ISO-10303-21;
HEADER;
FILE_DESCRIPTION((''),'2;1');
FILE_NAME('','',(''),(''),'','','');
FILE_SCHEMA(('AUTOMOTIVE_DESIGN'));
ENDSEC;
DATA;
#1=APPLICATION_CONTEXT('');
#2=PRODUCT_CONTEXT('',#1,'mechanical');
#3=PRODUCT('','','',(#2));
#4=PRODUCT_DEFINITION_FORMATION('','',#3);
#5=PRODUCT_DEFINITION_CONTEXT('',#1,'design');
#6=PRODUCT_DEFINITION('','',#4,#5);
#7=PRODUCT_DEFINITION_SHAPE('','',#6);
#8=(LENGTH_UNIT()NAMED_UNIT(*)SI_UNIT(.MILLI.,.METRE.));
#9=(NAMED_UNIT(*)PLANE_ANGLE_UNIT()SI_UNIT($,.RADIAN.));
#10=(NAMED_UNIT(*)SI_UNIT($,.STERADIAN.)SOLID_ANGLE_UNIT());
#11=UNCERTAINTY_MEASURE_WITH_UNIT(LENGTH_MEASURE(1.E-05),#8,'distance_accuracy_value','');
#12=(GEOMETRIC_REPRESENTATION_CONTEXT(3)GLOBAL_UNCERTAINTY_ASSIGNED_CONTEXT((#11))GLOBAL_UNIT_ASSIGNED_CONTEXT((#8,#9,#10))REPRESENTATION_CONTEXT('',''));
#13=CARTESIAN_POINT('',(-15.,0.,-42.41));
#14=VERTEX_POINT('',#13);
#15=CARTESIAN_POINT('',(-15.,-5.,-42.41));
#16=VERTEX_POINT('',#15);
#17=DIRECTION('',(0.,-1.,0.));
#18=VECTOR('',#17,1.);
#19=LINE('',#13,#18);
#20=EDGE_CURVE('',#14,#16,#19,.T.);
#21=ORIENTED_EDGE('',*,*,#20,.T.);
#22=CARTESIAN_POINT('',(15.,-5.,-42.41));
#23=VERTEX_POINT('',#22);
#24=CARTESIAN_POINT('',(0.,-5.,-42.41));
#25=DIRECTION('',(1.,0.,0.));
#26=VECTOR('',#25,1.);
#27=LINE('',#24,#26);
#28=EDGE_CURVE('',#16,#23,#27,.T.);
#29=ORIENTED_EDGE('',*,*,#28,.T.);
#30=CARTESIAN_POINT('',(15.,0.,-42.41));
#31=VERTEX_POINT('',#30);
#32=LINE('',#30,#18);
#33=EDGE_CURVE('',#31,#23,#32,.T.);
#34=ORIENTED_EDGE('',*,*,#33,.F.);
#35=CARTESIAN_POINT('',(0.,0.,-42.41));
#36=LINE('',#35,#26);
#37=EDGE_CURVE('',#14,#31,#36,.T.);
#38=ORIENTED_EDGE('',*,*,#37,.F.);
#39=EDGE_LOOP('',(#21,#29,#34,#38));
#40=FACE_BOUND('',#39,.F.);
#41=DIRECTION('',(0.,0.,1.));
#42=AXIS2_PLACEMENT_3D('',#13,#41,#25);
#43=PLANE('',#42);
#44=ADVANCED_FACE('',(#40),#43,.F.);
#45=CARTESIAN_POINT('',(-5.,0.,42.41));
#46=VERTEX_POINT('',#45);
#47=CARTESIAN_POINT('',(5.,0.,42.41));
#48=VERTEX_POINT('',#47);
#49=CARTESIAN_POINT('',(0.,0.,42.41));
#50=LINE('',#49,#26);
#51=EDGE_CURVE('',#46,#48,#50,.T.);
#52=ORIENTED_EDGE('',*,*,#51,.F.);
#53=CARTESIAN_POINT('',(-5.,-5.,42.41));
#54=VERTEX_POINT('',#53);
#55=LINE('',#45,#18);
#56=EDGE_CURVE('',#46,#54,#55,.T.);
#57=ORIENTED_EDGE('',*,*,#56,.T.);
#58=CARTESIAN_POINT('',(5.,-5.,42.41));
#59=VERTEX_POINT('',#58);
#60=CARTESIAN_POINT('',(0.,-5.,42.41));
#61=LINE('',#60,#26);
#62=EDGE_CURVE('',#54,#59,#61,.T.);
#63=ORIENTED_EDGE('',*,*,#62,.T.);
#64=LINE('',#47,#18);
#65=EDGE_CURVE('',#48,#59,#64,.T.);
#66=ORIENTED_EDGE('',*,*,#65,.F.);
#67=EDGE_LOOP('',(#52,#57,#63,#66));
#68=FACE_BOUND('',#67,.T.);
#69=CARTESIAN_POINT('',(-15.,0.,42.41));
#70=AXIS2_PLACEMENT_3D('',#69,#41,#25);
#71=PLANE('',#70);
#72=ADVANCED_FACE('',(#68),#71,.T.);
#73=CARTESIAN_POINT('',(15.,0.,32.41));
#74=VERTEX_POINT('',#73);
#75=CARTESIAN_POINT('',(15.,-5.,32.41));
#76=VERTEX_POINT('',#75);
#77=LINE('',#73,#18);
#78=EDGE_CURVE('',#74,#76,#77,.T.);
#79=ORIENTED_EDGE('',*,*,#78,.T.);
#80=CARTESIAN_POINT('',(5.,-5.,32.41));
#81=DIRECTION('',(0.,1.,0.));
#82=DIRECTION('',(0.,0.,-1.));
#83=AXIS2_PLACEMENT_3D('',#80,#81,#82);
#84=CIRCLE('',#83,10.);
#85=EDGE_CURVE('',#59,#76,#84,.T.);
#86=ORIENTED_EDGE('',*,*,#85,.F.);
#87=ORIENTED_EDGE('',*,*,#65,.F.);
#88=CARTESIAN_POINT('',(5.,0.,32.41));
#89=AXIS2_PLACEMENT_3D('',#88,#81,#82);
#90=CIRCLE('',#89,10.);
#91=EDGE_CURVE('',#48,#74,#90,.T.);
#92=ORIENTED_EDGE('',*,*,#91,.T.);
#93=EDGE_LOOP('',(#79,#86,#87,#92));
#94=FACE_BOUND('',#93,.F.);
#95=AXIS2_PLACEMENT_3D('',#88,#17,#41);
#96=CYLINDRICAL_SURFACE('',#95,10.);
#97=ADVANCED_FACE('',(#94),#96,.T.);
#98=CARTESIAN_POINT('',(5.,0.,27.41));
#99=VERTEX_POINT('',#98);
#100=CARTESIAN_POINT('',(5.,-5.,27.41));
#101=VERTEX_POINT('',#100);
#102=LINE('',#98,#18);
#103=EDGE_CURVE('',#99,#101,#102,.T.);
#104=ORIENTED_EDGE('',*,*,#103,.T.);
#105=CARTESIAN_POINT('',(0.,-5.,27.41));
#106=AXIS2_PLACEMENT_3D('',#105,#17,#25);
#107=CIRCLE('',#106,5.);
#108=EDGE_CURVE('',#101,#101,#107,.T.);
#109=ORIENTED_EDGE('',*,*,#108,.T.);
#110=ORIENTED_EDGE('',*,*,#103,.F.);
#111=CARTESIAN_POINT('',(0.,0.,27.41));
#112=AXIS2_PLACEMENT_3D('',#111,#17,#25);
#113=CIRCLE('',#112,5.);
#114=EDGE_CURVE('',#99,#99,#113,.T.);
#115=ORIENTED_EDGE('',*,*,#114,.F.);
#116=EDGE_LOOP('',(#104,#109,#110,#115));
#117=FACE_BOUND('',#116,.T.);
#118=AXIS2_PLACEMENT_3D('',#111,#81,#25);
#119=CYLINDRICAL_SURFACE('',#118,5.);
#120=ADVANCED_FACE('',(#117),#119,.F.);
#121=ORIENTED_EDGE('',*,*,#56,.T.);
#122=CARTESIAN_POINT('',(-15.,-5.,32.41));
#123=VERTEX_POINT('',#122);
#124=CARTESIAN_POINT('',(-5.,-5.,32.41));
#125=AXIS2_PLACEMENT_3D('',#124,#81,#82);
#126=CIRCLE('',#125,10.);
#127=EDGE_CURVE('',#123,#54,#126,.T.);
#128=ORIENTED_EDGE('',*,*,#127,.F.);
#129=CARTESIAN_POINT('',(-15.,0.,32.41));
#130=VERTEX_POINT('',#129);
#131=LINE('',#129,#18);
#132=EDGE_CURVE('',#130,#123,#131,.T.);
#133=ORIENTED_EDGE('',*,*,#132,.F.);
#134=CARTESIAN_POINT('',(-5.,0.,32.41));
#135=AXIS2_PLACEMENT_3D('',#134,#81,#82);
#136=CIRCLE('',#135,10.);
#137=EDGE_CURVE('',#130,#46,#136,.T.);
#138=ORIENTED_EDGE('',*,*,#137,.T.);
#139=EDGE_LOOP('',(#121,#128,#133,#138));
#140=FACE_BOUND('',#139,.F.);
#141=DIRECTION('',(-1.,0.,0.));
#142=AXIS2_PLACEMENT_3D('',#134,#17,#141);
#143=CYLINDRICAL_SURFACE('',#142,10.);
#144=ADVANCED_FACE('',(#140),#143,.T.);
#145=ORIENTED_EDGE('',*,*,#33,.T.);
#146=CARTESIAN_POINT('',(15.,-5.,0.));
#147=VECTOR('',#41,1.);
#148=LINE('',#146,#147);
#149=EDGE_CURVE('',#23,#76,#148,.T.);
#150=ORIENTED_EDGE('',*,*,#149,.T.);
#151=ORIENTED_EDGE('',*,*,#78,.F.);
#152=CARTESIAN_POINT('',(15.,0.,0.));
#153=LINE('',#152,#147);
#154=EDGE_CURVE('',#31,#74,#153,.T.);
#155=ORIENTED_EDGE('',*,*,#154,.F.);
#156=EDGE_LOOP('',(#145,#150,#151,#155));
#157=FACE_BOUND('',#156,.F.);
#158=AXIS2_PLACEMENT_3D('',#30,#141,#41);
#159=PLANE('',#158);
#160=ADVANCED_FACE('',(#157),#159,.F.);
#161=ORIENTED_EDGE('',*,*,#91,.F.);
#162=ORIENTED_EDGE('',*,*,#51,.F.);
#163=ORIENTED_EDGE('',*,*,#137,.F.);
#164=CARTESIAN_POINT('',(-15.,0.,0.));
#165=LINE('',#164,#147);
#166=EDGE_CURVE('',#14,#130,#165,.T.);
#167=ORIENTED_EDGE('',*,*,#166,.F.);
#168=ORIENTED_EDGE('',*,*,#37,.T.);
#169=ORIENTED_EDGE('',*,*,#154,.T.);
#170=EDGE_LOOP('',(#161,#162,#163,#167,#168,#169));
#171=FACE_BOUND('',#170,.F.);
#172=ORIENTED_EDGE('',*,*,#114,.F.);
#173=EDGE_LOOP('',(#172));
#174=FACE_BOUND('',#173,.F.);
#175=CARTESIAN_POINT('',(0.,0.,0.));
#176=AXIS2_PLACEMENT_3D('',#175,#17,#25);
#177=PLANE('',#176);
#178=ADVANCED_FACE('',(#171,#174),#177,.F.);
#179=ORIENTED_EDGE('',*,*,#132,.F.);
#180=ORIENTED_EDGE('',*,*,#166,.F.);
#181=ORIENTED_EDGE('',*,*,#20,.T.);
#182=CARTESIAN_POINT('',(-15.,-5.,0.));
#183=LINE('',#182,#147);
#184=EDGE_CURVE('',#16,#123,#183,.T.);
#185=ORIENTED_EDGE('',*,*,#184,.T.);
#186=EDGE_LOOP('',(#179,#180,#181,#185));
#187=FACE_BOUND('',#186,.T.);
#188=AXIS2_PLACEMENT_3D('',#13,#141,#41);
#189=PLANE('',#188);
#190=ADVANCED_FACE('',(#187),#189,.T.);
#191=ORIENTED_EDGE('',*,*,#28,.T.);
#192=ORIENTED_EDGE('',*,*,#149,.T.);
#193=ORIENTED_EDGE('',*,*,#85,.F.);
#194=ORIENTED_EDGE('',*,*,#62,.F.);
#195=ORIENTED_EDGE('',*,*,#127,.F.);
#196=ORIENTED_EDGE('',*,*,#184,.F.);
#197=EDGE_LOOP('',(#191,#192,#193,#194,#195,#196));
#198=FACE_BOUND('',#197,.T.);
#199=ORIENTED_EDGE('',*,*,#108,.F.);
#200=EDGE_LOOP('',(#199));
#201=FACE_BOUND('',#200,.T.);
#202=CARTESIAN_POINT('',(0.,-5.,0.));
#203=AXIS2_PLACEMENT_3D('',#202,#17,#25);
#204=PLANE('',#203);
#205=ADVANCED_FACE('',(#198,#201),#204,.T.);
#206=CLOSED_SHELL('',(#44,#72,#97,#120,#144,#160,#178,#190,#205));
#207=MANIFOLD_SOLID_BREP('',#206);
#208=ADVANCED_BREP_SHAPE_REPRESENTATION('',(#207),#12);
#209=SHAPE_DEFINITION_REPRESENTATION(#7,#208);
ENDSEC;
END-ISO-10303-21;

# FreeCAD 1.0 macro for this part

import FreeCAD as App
import Part
import Sketcher


def edges_at(feature, points):
    """Names of the edges that pass closest to the given points."""
    edges = feature.Shape.Edges
    near = lambda p: min(range(len(edges)), key=lambda i: edges[i].distToShape(Part.Vertex(*p))[0])
    return sorted({f"Edge{near(p) + 1}" for p in points})

doc = App.newDocument("Part")
params = doc.addObject("Spreadsheet::Sheet", "Params")
for row, (alias, value) in enumerate([
    ("sketch1_diameter", "10 mm"),
    ("sketch1_width", "30 mm"),
    ("sketch1_height", "84.82 mm"),
    ("pad1_length", "5 mm"),
    ("fillet_radius", "10 mm"),
], start=1):
    params.set(f"A{row}", alias)
    params.set(f"B{row}", "=" + value)
    params.setAlias(f"B{row}", alias)

body = doc.addObject("PartDesign::Body", "Body")

# Sketch on XZ plane
sketch1 = body.newObject("Sketcher::SketchObject", "Sketch")
sketch1.AttachmentSupport = (doc.getObject("XZ_Plane"), [""])
sketch1.MapMode = "FlatFace"
sketch1.addGeometry(Part.LineSegment(App.Vector(-15, 42, 0), App.Vector(-15, -42, 0)), False)
sketch1.addGeometry(Part.LineSegment(App.Vector(-15, -42, 0), App.Vector(15, -42, 0)), False)
sketch1.addGeometry(Part.LineSegment(App.Vector(15, -42, 0), App.Vector(15, 42, 0)), False)
sketch1.addGeometry(Part.LineSegment(App.Vector(15, 42, 0), App.Vector(-15, 42, 0)), False)
sketch1.addGeometry(Part.Circle(App.Vector(0, 27, 0), App.Vector(0, 0, 1), 5), False)
sketch1.addConstraint(Sketcher.Constraint("Coincident", 0, 2, 1, 1))
sketch1.addConstraint(Sketcher.Constraint("Coincident", 1, 2, 2, 1))
sketch1.addConstraint(Sketcher.Constraint("Coincident", 2, 2, 3, 1))
sketch1.addConstraint(Sketcher.Constraint("Coincident", 3, 2, 0, 1))
sketch1.addConstraint(Sketcher.Constraint("Vertical", 0))
sketch1.addConstraint(Sketcher.Constraint("Horizontal", 1))
sketch1.addConstraint(Sketcher.Constraint("Vertical", 2))
sketch1.addConstraint(Sketcher.Constraint("Horizontal", 3))
sketch1.addConstraint(Sketcher.Constraint("Symmetric", 0, 2, 2, 2, -1, 1))
sketch1.addConstraint(Sketcher.Constraint("PointOnObject", 4, 3, -2))
sketch1.addConstraint(Sketcher.Constraint("Diameter", 4, 10.0))
sketch1.addConstraint(Sketcher.Constraint("DistanceX", 1, 1, 1, 2, 30.0))
sketch1.addConstraint(Sketcher.Constraint("DistanceY", 4, 3, 2, 2, 15.0))
sketch1.addConstraint(Sketcher.Constraint("DistanceY", 0, 2, 0, 1, 84.82))
sketch1.setExpression("Constraints[10]", "Params.sketch1_diameter")
sketch1.setExpression("Constraints[11]", "Params.sketch1_width")
sketch1.setExpression("Constraints[13]", "Params.sketch1_height")
pad1 = body.newObject("PartDesign::Pad", "Pad")
pad1.Profile = sketch1
pad1.setExpression("Length", "Params.pad1_length")
doc.recompute()

fillet = body.newObject("PartDesign::Fillet", "Fillet")
fillet.Base = (pad1, edges_at(pad1, [(15, -2.5, 42.41), (-15, -2.5, 42.41)]))
fillet.setExpression("Radius", "Params.fillet_radius")

doc.recompute()
